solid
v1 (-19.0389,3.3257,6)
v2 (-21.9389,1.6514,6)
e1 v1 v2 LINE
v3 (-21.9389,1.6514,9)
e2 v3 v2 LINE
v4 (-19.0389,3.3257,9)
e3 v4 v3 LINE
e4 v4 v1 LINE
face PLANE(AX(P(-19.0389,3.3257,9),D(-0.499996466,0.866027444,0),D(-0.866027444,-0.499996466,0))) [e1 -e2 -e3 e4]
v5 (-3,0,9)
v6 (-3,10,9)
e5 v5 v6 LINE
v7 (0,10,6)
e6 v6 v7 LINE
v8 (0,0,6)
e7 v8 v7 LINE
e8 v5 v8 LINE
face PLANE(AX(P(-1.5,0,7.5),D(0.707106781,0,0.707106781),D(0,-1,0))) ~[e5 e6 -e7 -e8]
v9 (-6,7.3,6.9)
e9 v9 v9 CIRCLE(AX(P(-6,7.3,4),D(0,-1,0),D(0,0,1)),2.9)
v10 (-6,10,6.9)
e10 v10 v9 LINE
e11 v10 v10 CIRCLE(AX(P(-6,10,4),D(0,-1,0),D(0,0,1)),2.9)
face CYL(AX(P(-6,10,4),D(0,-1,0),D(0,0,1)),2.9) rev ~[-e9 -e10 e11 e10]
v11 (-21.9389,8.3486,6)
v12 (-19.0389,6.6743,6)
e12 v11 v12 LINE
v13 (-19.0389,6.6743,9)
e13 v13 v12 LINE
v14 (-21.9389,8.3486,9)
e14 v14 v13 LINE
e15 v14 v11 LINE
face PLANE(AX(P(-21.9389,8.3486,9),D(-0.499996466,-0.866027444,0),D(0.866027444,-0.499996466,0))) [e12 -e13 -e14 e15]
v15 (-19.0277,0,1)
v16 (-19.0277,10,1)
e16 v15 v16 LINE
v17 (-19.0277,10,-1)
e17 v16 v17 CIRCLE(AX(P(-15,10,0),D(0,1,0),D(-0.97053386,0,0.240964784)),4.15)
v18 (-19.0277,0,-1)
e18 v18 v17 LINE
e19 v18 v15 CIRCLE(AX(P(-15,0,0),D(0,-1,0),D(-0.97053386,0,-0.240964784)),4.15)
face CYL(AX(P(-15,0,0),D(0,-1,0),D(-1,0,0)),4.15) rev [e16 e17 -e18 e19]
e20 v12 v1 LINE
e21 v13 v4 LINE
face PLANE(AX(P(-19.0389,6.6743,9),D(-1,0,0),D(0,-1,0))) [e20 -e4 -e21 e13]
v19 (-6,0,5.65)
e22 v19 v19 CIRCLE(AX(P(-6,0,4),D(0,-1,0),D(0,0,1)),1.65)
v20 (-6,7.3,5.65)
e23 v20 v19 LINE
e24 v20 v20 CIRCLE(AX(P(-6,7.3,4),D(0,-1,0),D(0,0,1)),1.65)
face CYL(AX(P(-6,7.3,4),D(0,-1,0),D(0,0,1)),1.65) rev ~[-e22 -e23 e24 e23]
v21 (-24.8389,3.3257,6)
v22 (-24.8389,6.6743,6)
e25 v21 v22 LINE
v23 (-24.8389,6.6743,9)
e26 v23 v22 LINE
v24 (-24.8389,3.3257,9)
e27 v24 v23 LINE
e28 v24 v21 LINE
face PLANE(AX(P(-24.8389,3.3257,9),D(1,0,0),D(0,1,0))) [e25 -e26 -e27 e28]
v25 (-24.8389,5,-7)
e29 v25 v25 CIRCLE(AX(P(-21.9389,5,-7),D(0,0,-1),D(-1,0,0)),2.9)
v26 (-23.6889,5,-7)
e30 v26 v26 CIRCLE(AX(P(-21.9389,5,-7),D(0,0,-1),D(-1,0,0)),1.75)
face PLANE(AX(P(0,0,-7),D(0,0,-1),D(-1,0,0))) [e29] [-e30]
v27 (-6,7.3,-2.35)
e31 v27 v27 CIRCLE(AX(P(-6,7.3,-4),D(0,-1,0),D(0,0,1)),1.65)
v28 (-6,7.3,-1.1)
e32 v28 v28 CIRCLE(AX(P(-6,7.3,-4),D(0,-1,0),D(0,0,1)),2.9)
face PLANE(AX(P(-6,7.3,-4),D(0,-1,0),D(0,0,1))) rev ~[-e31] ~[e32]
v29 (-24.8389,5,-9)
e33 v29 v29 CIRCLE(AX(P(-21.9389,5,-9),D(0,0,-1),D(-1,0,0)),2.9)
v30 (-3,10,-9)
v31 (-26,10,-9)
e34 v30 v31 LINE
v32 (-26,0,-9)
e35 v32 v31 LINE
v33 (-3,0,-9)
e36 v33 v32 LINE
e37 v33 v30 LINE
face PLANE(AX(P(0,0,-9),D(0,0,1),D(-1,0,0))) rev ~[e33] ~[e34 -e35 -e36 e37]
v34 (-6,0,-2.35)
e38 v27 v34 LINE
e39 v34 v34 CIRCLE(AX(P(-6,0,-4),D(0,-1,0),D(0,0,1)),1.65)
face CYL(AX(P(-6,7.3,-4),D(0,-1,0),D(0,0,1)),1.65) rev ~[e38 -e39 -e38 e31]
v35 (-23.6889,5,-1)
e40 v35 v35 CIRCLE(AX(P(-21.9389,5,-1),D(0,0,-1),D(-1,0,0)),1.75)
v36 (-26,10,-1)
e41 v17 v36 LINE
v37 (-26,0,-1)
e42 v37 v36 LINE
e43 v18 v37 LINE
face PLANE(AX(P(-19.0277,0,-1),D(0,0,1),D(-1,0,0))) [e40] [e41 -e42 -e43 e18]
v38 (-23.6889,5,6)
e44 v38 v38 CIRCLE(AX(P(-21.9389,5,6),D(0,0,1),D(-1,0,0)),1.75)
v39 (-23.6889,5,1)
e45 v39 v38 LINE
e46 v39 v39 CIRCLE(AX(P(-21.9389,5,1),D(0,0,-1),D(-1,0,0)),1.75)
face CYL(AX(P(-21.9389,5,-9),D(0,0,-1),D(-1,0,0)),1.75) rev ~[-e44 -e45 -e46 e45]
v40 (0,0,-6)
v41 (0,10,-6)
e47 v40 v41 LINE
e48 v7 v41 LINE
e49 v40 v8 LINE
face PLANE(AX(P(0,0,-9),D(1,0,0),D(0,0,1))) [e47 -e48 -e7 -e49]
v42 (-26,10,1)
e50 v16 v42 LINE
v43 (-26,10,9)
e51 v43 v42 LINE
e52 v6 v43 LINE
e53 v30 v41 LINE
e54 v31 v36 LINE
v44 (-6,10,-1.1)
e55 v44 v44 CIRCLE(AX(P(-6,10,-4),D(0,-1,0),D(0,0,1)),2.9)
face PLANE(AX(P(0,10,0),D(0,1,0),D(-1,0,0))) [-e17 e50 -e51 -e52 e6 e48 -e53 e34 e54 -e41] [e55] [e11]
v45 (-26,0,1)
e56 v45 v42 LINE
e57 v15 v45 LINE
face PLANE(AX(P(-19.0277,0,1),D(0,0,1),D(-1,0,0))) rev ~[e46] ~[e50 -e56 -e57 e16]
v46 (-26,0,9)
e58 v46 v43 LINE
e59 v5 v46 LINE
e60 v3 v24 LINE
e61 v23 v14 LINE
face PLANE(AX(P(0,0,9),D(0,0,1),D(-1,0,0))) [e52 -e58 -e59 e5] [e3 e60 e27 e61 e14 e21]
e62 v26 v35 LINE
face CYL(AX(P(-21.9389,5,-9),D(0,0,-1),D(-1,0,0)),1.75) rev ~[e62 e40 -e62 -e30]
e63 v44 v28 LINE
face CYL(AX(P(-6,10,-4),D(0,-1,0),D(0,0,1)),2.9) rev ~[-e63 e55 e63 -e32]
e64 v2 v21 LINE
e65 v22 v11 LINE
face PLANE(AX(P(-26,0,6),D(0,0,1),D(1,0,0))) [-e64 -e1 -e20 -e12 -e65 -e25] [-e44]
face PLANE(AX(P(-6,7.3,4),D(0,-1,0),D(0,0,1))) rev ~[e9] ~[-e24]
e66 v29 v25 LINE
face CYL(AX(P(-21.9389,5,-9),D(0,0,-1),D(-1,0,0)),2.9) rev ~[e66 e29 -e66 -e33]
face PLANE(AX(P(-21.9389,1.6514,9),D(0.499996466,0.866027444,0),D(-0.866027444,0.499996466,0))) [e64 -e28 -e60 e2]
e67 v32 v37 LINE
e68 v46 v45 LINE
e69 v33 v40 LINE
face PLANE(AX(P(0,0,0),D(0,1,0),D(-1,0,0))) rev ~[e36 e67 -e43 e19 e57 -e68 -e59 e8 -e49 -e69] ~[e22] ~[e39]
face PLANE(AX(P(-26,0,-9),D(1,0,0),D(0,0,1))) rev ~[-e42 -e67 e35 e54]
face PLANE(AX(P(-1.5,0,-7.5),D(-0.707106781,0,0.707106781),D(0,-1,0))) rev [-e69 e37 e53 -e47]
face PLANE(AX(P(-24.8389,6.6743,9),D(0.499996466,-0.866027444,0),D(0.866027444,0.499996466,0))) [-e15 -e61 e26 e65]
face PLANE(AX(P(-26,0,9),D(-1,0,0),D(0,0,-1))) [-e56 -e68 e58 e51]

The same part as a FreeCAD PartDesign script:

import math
import FreeCAD as App
import Part
import Sketcher
Q = App.Units.Quantity


def edges_at(feature, points):
    """Names of the edges that pass closest to the given points."""
    edges = feature.Shape.Edges
    near = lambda p: min(range(len(edges)), key=lambda i: edges[i].distToShape(Part.Vertex(*p))[0])
    return sorted({f"Edge{near(p) + 1}" for p in points})


def add_polygon(sketch, points):
    """Adds a closed chain of lines whose ends are joined by coincident constraints."""
    first, n = sketch.GeometryCount, len(points)
    for a, b in zip(points, points[1:] + points[:1]):
        sketch.addGeometry(Part.LineSegment(App.Vector(*a, 0), App.Vector(*b, 0)), False)
    for i in range(n):
        sketch.addConstraint(Sketcher.Constraint("Coincident", first + i, 2, first + (i + 1) % n, 1))

doc = App.newDocument("Part")
body = doc.addObject("PartDesign::Body", "Body")

# Sketch on XZ plane
sketch1 = body.newObject("Sketcher::SketchObject", "Sketch")
sketch1.AttachmentSupport = (doc.getObject("XZ_Plane"), [""])
sketch1.MapMode = "FlatFace"
sketch1.addGeometry([
    Part.ArcOfCircle(Part.Circle(App.Vector(-15, 0, 0), App.Vector(0, 0, 1), 4.2), math.radians(-166), math.radians(166)),  # 0
    Part.LineSegment(App.Vector(-19, 1, 0), App.Vector(-26, 1, 0)),  # 1
    Part.LineSegment(App.Vector(-26, 1, 0), App.Vector(-26, 9, 0)),  # 2
    Part.LineSegment(App.Vector(-26, 9, 0), App.Vector(0, 9, 0)),  # 3
    Part.LineSegment(App.Vector(0, 9, 0), App.Vector(0, -9, 0)),  # 4
    Part.LineSegment(App.Vector(0, -9, 0), App.Vector(-26, -9, 0)),  # 5
    Part.LineSegment(App.Vector(-26, -9, 0), App.Vector(-26, -1, 0)),  # 6
    Part.LineSegment(App.Vector(-26, -1, 0), App.Vector(-19, -1, 0)),  # 7
], False)
sketch1.addConstraint([
    Sketcher.Constraint("Coincident", 0, 2, 1, 1),
    Sketcher.Constraint("Coincident", 1, 2, 2, 1),
    Sketcher.Constraint("Coincident", 2, 2, 3, 1),
    Sketcher.Constraint("Coincident", 3, 2, 4, 1),
    Sketcher.Constraint("Coincident", 4, 2, 5, 1),
    Sketcher.Constraint("Coincident", 5, 2, 6, 1),
    Sketcher.Constraint("Coincident", 6, 2, 7, 1),
    Sketcher.Constraint("Coincident", 7, 2, 0, 1),
    Sketcher.Constraint("Horizontal", 1),
    Sketcher.Constraint("Vertical", 2),
    Sketcher.Constraint("Horizontal", 3),
    Sketcher.Constraint("Vertical", 4),
    Sketcher.Constraint("Horizontal", 5),
    Sketcher.Constraint("Vertical", 6),
    Sketcher.Constraint("Horizontal", 7),
    Sketcher.Constraint("Symmetric", 3, 2, 4, 2, -1, 1),
    Sketcher.Constraint("Symmetric", 1, 2, 6, 2, -1),
    Sketcher.Constraint("PointOnObject", 0, 3, -1),
    Sketcher.Constraint("DistanceX", 3, 1, 3, 2, 26.0),
    Sketcher.Constraint("Radius", 0, 4.15),
    Sketcher.Constraint("DistanceX", 0, 3, -1, 1, 15.0),
    Sketcher.Constraint("DistanceY", -1, 1, 0, 2, 1.0),
    Sketcher.Constraint("DistanceY", -1, 1, 2, 2, 9.0),
])
pad1 = body.newObject("PartDesign::Pad", "Pad")
pad1.Profile = sketch1
pad1.Length = 10
pad1.Reversed = True

# Sketch on XZ plane
sketch2 = body.newObject("Sketcher::SketchObject", "Sketch001")
sketch2.AttachmentSupport = (doc.getObject("XZ_Plane"), [""])
sketch2.MapMode = "FlatFace"
sketch2.AttachmentOffset = App.Placement(App.Vector(0, 0, -10), App.Rotation())
sketch2.addGeometry([
    Part.Circle(App.Vector(-6, 4, 0), App.Vector(0, 0, 1), 1.6),
    Part.Circle(App.Vector(-6, -4, 0), App.Vector(0, 0, 1), 1.6),
], False)
sketch2.addConstraint([
    Sketcher.Constraint("Equal", 0, 1),
    Sketcher.Constraint("Symmetric", 0, 3, 1, 3, -1),
    Sketcher.Constraint("Diameter", 0, 3.3),
    Sketcher.Constraint("DistanceX", 0, 3, -1, 1, 6.0),
    Sketcher.Constraint("DistanceY", -1, 1, 0, 3, 4.0),
])
doc.recompute()
hole = body.newObject("PartDesign::Hole", "Hole")
hole.Profile = sketch2
hole.ThreadType = "None"
hole.Diameter = 3.3
hole.DepthType = "ThroughAll"
hole.HoleCutType = "Counterbore"
hole.HoleCutDiameter = 5.8
hole.HoleCutDepth = 2.7
hole.Reversed = True

# Sketch on XY plane
sketch3 = body.newObject("Sketcher::SketchObject", "Sketch002")
sketch3.AttachmentSupport = (doc.getObject("XY_Plane"), [""])
sketch3.MapMode = "FlatFace"
sketch3.AttachmentOffset = App.Placement(App.Vector(0, 0, -9), App.Rotation())
sketch3.addGeometry(Part.Circle(App.Vector(-21.9, 5, 0), App.Vector(0, 0, 1), 1.8), False)
sketch3.addConstraint([
    Sketcher.Constraint("Diameter", 0, 3.5),
    Sketcher.Constraint("DistanceY", -1, 1, 0, 3, 5.0),
    Sketcher.Constraint("DistanceX", 0, 3, -1, 1, 21.939),
])
pocket1 = body.newObject("PartDesign::Pocket", "Pocket")
pocket1.Profile = sketch3
pocket1.Length = 18
pocket1.Reversed = True

# Sketch on XY plane
sketch4 = body.newObject("Sketcher::SketchObject", "Sketch003")
sketch4.AttachmentSupport = (doc.getObject("XY_Plane"), [""])
sketch4.MapMode = "FlatFace"
sketch4.AttachmentOffset = App.Placement(App.Vector(0, 0, 9), App.Rotation())
add_polygon(sketch4, [(-21.9, 8.3), (-24.8, 6.7), (-24.8, 3.3), (-21.9, 1.7), (-19, 3.3), (-19, 6.7)])  # lines 0-5
sketch4.addGeometry(Part.Circle(App.Vector(-21.9, 5, 0), App.Vector(0, 0, 1), 1.8), False)  # 6
sketch4.addConstraint([
    Sketcher.Constraint("Vertical", 1),
    Sketcher.Constraint("Vertical", 4),
    Sketcher.Constraint("Parallel", 0, 3),
    Sketcher.Constraint("Parallel", 2, 5),
    Sketcher.Constraint("Horizontal", 1, 2, 3, 2),
    Sketcher.Constraint("Horizontal", 0, 2, 4, 2),
    Sketcher.Constraint("Vertical", 6, 3, 2, 2),
    Sketcher.Constraint("Vertical", 2, 2, 5, 2),
    Sketcher.Constraint("Diameter", 6, 3.5),
    Sketcher.Constraint("DistanceX", 1, 2, 3, 2, 5.8),
    Sketcher.Constraint("Angle", 0, Q("-150.0002 deg")),
    Sketcher.Constraint("DistanceY", -1, 1, 6, 3, 5.0),
    Sketcher.Constraint("DistanceY", 1, 2, 1, 1, 3.3486),
    Sketcher.Constraint("DistanceX", 6, 3, -1, 1, 21.939),
    Sketcher.Constraint("DistanceY", -1, 1, 0, 2, 6.6743),
])
pocket2 = body.newObject("PartDesign::Pocket", "Pocket001")
pocket2.Profile = sketch4
pocket2.Length = 3

# Sketch on XY plane
sketch5 = body.newObject("Sketcher::SketchObject", "Sketch004")
sketch5.AttachmentSupport = (doc.getObject("XY_Plane"), [""])
sketch5.MapMode = "FlatFace"
sketch5.AttachmentOffset = App.Placement(App.Vector(0, 0, -9), App.Rotation())
sketch5.addGeometry([
    Part.Circle(App.Vector(-21.9, 5, 0), App.Vector(0, 0, 1), 2.9),
    Part.Circle(App.Vector(-21.9, 5, 0), App.Vector(0, 0, 1), 1.8),
], False)
sketch5.addConstraint([
    Sketcher.Constraint("Coincident", 1, 3, 0, 3),
    Sketcher.Constraint("Diameter", 0, 5.8),
    Sketcher.Constraint("Diameter", 1, 3.5),
    Sketcher.Constraint("DistanceY", -1, 1, 0, 3, 5.0),
    Sketcher.Constraint("DistanceX", 0, 3, -1, 1, 21.939),
])
pocket3 = body.newObject("PartDesign::Pocket", "Pocket002")
pocket3.Profile = sketch5
pocket3.Length = 2
pocket3.Reversed = True
doc.recompute()

chamfer = body.newObject("PartDesign::Chamfer", "Chamfer")
chamfer.Base = (pocket3, edges_at(pocket3, [(0, 5, 9), (0, 5, -9)]))
chamfer.Size = 3

doc.recompute()
